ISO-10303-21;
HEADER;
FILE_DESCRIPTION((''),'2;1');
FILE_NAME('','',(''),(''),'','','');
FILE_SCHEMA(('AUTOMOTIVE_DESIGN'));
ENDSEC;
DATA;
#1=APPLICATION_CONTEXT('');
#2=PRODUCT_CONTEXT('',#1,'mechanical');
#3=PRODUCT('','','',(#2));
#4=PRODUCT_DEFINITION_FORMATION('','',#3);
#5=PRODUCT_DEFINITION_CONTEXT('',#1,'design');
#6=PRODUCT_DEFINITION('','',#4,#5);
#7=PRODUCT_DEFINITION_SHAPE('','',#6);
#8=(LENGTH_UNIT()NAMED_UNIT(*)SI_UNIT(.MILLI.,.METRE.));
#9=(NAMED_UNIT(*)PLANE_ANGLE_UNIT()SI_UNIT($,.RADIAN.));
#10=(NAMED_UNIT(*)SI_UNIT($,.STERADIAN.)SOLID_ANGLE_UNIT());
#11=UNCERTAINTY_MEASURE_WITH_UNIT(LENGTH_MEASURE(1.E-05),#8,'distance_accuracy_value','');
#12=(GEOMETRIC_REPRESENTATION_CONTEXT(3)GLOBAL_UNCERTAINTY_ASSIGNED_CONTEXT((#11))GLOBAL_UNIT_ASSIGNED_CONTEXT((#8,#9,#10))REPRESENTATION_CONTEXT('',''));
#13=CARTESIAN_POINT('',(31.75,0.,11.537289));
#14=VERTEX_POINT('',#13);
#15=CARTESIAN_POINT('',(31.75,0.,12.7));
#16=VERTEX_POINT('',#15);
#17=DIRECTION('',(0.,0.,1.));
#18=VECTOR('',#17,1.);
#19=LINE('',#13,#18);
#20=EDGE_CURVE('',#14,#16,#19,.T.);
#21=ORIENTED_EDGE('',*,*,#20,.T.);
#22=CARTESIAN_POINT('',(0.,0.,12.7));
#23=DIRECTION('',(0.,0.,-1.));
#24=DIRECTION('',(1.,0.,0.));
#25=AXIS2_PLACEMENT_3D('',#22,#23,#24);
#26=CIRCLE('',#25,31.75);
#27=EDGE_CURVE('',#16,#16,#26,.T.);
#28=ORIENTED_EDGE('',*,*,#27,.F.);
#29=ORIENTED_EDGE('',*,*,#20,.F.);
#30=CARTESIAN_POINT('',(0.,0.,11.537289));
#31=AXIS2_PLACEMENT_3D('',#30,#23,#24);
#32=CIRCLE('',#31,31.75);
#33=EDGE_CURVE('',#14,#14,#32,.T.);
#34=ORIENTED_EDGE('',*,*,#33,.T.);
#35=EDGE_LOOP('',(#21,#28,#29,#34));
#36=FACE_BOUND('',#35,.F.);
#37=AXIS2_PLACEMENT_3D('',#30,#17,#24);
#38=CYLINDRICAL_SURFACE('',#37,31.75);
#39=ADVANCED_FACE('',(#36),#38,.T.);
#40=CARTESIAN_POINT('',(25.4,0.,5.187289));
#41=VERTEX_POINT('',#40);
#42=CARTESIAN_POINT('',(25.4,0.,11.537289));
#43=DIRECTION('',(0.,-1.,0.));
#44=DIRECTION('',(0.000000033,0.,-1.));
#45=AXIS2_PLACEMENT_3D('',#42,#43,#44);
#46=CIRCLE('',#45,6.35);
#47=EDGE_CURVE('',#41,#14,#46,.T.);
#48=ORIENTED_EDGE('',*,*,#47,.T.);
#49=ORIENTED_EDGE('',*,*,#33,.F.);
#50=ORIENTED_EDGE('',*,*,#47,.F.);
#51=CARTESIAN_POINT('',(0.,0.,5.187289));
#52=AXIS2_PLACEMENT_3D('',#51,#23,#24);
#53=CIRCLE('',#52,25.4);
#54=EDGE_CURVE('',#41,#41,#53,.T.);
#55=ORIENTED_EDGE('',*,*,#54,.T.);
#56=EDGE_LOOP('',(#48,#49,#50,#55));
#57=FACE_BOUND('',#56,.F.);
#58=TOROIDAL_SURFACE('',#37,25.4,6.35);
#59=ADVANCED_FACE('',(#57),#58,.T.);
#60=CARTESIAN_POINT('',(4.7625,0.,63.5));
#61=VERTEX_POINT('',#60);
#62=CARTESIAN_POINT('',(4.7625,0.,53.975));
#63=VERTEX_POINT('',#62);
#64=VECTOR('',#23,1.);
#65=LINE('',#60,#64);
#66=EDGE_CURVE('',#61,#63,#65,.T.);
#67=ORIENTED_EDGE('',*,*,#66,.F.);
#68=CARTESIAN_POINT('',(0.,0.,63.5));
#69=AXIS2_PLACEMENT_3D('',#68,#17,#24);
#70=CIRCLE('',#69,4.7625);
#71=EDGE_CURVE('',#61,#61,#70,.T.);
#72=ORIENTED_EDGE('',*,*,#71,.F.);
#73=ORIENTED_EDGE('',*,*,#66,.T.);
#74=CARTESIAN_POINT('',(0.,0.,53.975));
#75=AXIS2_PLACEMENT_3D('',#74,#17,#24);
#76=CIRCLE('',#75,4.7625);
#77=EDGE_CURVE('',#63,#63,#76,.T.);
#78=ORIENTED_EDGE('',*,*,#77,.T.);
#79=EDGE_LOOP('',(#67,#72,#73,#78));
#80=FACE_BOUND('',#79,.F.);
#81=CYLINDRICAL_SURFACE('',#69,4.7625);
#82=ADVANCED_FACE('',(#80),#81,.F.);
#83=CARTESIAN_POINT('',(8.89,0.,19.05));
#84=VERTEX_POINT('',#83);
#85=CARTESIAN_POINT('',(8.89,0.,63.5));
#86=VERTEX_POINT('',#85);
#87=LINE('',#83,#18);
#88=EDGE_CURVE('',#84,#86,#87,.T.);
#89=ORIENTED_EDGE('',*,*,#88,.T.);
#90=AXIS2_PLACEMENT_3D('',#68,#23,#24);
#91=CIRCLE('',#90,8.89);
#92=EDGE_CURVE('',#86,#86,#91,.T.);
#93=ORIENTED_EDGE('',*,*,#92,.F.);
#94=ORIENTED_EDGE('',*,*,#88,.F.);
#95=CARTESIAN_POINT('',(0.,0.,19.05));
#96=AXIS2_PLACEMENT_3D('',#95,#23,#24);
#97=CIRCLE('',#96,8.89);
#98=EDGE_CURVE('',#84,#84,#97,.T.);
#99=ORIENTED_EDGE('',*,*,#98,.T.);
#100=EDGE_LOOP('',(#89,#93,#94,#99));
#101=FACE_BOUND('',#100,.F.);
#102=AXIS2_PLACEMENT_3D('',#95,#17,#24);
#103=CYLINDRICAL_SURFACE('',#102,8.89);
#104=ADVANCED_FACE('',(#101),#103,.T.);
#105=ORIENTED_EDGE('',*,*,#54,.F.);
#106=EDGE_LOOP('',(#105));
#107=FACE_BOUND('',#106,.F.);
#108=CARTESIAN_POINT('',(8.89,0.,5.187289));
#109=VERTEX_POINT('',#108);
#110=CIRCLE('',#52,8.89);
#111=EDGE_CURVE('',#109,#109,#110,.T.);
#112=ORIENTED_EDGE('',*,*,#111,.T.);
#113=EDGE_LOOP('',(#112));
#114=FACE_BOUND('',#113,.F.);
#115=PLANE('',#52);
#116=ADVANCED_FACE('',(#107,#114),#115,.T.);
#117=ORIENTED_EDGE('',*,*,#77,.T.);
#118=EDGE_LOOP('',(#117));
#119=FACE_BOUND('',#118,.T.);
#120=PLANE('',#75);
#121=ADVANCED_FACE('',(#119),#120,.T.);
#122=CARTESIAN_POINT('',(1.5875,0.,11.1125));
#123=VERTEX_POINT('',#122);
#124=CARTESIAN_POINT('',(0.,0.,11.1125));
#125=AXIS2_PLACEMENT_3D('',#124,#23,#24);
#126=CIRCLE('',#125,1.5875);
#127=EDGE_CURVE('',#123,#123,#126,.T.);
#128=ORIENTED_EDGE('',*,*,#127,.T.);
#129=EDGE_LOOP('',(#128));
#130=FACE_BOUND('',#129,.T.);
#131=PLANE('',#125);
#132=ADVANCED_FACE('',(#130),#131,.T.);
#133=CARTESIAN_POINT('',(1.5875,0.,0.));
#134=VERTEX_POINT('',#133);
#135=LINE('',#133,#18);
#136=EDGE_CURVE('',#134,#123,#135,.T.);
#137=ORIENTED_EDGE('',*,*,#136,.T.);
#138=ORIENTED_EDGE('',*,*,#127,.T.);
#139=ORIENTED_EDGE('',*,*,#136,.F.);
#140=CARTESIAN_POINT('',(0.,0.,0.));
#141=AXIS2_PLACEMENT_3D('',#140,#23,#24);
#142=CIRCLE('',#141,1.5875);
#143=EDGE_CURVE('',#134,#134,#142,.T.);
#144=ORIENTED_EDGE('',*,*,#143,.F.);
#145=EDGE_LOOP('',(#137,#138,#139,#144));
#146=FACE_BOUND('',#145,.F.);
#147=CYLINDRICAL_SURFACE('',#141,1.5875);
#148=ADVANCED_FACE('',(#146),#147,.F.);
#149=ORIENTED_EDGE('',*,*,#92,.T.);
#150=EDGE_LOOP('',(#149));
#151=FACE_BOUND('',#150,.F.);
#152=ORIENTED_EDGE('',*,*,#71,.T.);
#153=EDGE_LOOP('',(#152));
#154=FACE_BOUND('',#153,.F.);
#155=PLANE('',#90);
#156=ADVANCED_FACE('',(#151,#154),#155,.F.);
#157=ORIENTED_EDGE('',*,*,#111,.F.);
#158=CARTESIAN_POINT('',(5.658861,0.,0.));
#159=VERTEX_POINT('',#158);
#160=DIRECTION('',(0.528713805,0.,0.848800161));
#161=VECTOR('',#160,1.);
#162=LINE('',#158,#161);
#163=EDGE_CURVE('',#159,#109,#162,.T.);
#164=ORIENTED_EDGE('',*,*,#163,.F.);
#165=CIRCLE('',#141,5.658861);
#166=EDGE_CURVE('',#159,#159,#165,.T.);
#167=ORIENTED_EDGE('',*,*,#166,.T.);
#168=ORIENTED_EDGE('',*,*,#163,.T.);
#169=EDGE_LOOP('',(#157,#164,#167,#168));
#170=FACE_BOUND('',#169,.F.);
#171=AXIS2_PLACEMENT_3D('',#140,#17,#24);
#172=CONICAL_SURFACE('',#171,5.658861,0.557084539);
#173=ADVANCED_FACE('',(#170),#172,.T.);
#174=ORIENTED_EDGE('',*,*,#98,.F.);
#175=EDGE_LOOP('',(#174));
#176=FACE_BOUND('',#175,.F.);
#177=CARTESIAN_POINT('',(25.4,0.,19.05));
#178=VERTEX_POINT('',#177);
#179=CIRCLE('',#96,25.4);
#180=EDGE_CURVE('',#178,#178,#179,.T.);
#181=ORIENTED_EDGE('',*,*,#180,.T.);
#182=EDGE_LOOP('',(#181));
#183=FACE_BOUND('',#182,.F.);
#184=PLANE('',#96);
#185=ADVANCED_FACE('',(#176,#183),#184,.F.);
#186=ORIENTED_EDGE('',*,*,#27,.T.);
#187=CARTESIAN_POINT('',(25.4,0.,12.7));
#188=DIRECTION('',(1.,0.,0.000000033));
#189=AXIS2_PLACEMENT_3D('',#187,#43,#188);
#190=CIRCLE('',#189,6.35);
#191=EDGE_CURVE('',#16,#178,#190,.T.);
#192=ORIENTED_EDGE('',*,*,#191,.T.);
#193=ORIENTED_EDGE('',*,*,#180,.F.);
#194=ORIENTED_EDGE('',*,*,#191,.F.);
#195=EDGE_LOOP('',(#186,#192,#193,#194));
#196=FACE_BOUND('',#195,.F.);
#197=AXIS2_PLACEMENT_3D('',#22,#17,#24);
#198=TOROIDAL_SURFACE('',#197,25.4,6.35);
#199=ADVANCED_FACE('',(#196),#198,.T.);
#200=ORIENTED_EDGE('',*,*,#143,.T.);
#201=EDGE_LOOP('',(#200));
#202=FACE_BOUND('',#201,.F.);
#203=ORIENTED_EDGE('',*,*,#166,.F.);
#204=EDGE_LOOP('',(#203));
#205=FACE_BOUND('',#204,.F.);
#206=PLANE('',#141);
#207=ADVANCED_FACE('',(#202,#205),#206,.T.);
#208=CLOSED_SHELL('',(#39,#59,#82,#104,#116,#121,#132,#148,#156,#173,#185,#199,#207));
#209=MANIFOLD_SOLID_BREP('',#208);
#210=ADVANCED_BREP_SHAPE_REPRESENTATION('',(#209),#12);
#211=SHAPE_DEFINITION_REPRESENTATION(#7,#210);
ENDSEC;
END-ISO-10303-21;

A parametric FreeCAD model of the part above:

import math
import FreeCAD as App
import Part
import Sketcher

V = App.Vector
Q = App.Units.Quantity

doc = App.newDocument("Part")
params = doc.addObject("Spreadsheet::Sheet", "Params")
for row, (alias, value) in enumerate([
    ("sketch1_radius", "0.25 in"),
    ("sketch1_height", "2.5 in"),
    ("sketch1_width", "0.65 in"),
    ("revolution_angle", "360 deg"),
    ("sketch2_diameter", "0.125 in"),
    ("pocket1_length", "0.4375 in"),
    ("sketch3_diameter", "0.375 in"),
    ("pocket2_length", "0.375 in"),
], start=1):
    params.set(f"A{row}", alias)
    params.set(f"B{row}", "=" + value)
    params.setAlias(f"B{row}", alias)

body = doc.addObject("PartDesign::Body", "Body")

# Sketch on XZ plane
sketch1 = body.newObject("Sketcher::SketchObject", "Sketch")
sketch1.AttachmentSupport = (doc.getObject("XZ_Plane"), [""])
sketch1.MapMode = "FlatFace"
sketch1.addGeometry([
    Part.LineSegment(V(0, 63.5, 0), V(0, 0, 0)),  # 0
    Part.LineSegment(V(0, 0, 0), V(5.7, 0, 0)),  # 1
    Part.LineSegment(V(5.7, 0, 0), V(8.9, 5.2, 0)),  # 2
    Part.LineSegment(V(8.9, 5.2, 0), V(25.4, 5.2, 0)),  # 3
    Part.ArcOfCircle(Part.Circle(V(25.4, 11.5, 0), V(0, 0, 1), 6.4), math.radians(-90), math.radians(0)),  # 4
    Part.LineSegment(V(31.8, 11.5, 0), V(31.8, 12.7, 0)),  # 5
    Part.ArcOfCircle(Part.Circle(V(25.4, 12.7, 0), V(0, 0, 1), 6.4), math.radians(0), math.radians(90)),  # 6
    Part.LineSegment(V(25.4, 19.1, 0), V(8.9, 19.1, 0)),  # 7
    Part.LineSegment(V(8.9, 19.1, 0), V(8.9, 63.5, 0)),  # 8
    Part.LineSegment(V(8.9, 63.5, 0), V(0, 63.5, 0)),  # 9
], False)
sketch1.addConstraint([
    Sketcher.Constraint("Coincident", 0, 2, 1, 1),
    Sketcher.Constraint("Coincident", 1, 2, 2, 1),
    Sketcher.Constraint("Coincident", 2, 2, 3, 1),
    Sketcher.Constraint("Tangent", 3, 2, 4, 1),
    Sketcher.Constraint("Tangent", 4, 2, 5, 1),
    Sketcher.Constraint("Tangent", 5, 2, 6, 1),
    Sketcher.Constraint("Tangent", 6, 2, 7, 1),
    Sketcher.Constraint("Coincident", 7, 2, 8, 1),
    Sketcher.Constraint("Coincident", 8, 2, 9, 1),
    Sketcher.Constraint("Coincident", 9, 2, 0, 1),
    Sketcher.Constraint("Vertical", 0),
    Sketcher.Constraint("Horizontal", 1),
    Sketcher.Constraint("Horizontal", 3),
    Sketcher.Constraint("Vertical", 5),
    Sketcher.Constraint("Horizontal", 7),
    Sketcher.Constraint("Vertical", 8),
    Sketcher.Constraint("Horizontal", 9),
    Sketcher.Constraint("Coincident", 0, 2, -1, 1),
    Sketcher.Constraint("Equal", 4, 6),
    Sketcher.Constraint("Vertical", 2, 2, 7, 2),
    Sketcher.Constraint("Radius", 4, Q("0.25 in")),
    Sketcher.Constraint("DistanceY", 0, 2, 0, 1, Q("2.5 in")),
    Sketcher.Constraint("DistanceX", -1, 1, 4, 3, Q("1 in")),
    Sketcher.Constraint("DistanceY", 6, 3, 8, 2, Q("2 in")),
    Sketcher.Constraint("DistanceX", 3, 1, 3, 2, Q("0.65 in")),
    Sketcher.Constraint("DistanceX", 1, 1, 1, 2, Q("5.658861 mm")),
    Sketcher.Constraint("DistanceY", 5, 1, 5, 2, Q("1.162711 mm")),
])
sketch1.setExpression("Constraints[20]", "Params.sketch1_radius")
sketch1.setExpression("Constraints[21]", "Params.sketch1_height")
sketch1.setExpression("Constraints[24]", "Params.sketch1_width")
revolution = body.newObject("PartDesign::Revolution", "Revolution")
revolution.Profile = sketch1
revolution.ReferenceAxis = (sketch1, ["V_Axis"])
revolution.setExpression("Angle", "Params.revolution_angle")

# Sketch on XY plane
sketch2 = body.newObject("Sketcher::SketchObject", "Sketch001")
sketch2.AttachmentSupport = (doc.getObject("XY_Plane"), [""])
sketch2.MapMode = "FlatFace"
sketch2.addGeometry(Part.Circle(V(0, 0, 0), V(0, 0, 1), 1.6), False)
sketch2.addConstraint([
    Sketcher.Constraint("Coincident", 0, 3, -1, 1),
    Sketcher.Constraint("Diameter", 0, Q("0.125 in")),
])
sketch2.setExpression("Constraints[1]", "Params.sketch2_diameter")
pocket1 = body.newObject("PartDesign::Pocket", "Pocket")
pocket1.Profile = sketch2
pocket1.setExpression("Length", "Params.pocket1_length")
pocket1.Reversed = True

# Sketch on XY plane
sketch3 = body.newObject("Sketcher::SketchObject", "Sketch002")
sketch3.AttachmentSupport = (doc.getObject("XY_Plane"), [""])
sketch3.MapMode = "FlatFace"
sketch3.AttachmentOffset = App.Placement(V(0, 0, 2.5 * 25.4), App.Rotation())
sketch3.addGeometry(Part.Circle(V(0, 0, 0), V(0, 0, 1), 4.8), False)
sketch3.addConstraint([
    Sketcher.Constraint("Coincident", 0, 3, -1, 1),
    Sketcher.Constraint("Diameter", 0, Q("0.375 in")),
])
sketch3.setExpression("Constraints[1]", "Params.sketch3_diameter")
pocket2 = body.newObject("PartDesign::Pocket", "Pocket001")
pocket2.Profile = sketch3
pocket2.setExpression("Length", "Params.pocket2_length")

doc.recompute()
